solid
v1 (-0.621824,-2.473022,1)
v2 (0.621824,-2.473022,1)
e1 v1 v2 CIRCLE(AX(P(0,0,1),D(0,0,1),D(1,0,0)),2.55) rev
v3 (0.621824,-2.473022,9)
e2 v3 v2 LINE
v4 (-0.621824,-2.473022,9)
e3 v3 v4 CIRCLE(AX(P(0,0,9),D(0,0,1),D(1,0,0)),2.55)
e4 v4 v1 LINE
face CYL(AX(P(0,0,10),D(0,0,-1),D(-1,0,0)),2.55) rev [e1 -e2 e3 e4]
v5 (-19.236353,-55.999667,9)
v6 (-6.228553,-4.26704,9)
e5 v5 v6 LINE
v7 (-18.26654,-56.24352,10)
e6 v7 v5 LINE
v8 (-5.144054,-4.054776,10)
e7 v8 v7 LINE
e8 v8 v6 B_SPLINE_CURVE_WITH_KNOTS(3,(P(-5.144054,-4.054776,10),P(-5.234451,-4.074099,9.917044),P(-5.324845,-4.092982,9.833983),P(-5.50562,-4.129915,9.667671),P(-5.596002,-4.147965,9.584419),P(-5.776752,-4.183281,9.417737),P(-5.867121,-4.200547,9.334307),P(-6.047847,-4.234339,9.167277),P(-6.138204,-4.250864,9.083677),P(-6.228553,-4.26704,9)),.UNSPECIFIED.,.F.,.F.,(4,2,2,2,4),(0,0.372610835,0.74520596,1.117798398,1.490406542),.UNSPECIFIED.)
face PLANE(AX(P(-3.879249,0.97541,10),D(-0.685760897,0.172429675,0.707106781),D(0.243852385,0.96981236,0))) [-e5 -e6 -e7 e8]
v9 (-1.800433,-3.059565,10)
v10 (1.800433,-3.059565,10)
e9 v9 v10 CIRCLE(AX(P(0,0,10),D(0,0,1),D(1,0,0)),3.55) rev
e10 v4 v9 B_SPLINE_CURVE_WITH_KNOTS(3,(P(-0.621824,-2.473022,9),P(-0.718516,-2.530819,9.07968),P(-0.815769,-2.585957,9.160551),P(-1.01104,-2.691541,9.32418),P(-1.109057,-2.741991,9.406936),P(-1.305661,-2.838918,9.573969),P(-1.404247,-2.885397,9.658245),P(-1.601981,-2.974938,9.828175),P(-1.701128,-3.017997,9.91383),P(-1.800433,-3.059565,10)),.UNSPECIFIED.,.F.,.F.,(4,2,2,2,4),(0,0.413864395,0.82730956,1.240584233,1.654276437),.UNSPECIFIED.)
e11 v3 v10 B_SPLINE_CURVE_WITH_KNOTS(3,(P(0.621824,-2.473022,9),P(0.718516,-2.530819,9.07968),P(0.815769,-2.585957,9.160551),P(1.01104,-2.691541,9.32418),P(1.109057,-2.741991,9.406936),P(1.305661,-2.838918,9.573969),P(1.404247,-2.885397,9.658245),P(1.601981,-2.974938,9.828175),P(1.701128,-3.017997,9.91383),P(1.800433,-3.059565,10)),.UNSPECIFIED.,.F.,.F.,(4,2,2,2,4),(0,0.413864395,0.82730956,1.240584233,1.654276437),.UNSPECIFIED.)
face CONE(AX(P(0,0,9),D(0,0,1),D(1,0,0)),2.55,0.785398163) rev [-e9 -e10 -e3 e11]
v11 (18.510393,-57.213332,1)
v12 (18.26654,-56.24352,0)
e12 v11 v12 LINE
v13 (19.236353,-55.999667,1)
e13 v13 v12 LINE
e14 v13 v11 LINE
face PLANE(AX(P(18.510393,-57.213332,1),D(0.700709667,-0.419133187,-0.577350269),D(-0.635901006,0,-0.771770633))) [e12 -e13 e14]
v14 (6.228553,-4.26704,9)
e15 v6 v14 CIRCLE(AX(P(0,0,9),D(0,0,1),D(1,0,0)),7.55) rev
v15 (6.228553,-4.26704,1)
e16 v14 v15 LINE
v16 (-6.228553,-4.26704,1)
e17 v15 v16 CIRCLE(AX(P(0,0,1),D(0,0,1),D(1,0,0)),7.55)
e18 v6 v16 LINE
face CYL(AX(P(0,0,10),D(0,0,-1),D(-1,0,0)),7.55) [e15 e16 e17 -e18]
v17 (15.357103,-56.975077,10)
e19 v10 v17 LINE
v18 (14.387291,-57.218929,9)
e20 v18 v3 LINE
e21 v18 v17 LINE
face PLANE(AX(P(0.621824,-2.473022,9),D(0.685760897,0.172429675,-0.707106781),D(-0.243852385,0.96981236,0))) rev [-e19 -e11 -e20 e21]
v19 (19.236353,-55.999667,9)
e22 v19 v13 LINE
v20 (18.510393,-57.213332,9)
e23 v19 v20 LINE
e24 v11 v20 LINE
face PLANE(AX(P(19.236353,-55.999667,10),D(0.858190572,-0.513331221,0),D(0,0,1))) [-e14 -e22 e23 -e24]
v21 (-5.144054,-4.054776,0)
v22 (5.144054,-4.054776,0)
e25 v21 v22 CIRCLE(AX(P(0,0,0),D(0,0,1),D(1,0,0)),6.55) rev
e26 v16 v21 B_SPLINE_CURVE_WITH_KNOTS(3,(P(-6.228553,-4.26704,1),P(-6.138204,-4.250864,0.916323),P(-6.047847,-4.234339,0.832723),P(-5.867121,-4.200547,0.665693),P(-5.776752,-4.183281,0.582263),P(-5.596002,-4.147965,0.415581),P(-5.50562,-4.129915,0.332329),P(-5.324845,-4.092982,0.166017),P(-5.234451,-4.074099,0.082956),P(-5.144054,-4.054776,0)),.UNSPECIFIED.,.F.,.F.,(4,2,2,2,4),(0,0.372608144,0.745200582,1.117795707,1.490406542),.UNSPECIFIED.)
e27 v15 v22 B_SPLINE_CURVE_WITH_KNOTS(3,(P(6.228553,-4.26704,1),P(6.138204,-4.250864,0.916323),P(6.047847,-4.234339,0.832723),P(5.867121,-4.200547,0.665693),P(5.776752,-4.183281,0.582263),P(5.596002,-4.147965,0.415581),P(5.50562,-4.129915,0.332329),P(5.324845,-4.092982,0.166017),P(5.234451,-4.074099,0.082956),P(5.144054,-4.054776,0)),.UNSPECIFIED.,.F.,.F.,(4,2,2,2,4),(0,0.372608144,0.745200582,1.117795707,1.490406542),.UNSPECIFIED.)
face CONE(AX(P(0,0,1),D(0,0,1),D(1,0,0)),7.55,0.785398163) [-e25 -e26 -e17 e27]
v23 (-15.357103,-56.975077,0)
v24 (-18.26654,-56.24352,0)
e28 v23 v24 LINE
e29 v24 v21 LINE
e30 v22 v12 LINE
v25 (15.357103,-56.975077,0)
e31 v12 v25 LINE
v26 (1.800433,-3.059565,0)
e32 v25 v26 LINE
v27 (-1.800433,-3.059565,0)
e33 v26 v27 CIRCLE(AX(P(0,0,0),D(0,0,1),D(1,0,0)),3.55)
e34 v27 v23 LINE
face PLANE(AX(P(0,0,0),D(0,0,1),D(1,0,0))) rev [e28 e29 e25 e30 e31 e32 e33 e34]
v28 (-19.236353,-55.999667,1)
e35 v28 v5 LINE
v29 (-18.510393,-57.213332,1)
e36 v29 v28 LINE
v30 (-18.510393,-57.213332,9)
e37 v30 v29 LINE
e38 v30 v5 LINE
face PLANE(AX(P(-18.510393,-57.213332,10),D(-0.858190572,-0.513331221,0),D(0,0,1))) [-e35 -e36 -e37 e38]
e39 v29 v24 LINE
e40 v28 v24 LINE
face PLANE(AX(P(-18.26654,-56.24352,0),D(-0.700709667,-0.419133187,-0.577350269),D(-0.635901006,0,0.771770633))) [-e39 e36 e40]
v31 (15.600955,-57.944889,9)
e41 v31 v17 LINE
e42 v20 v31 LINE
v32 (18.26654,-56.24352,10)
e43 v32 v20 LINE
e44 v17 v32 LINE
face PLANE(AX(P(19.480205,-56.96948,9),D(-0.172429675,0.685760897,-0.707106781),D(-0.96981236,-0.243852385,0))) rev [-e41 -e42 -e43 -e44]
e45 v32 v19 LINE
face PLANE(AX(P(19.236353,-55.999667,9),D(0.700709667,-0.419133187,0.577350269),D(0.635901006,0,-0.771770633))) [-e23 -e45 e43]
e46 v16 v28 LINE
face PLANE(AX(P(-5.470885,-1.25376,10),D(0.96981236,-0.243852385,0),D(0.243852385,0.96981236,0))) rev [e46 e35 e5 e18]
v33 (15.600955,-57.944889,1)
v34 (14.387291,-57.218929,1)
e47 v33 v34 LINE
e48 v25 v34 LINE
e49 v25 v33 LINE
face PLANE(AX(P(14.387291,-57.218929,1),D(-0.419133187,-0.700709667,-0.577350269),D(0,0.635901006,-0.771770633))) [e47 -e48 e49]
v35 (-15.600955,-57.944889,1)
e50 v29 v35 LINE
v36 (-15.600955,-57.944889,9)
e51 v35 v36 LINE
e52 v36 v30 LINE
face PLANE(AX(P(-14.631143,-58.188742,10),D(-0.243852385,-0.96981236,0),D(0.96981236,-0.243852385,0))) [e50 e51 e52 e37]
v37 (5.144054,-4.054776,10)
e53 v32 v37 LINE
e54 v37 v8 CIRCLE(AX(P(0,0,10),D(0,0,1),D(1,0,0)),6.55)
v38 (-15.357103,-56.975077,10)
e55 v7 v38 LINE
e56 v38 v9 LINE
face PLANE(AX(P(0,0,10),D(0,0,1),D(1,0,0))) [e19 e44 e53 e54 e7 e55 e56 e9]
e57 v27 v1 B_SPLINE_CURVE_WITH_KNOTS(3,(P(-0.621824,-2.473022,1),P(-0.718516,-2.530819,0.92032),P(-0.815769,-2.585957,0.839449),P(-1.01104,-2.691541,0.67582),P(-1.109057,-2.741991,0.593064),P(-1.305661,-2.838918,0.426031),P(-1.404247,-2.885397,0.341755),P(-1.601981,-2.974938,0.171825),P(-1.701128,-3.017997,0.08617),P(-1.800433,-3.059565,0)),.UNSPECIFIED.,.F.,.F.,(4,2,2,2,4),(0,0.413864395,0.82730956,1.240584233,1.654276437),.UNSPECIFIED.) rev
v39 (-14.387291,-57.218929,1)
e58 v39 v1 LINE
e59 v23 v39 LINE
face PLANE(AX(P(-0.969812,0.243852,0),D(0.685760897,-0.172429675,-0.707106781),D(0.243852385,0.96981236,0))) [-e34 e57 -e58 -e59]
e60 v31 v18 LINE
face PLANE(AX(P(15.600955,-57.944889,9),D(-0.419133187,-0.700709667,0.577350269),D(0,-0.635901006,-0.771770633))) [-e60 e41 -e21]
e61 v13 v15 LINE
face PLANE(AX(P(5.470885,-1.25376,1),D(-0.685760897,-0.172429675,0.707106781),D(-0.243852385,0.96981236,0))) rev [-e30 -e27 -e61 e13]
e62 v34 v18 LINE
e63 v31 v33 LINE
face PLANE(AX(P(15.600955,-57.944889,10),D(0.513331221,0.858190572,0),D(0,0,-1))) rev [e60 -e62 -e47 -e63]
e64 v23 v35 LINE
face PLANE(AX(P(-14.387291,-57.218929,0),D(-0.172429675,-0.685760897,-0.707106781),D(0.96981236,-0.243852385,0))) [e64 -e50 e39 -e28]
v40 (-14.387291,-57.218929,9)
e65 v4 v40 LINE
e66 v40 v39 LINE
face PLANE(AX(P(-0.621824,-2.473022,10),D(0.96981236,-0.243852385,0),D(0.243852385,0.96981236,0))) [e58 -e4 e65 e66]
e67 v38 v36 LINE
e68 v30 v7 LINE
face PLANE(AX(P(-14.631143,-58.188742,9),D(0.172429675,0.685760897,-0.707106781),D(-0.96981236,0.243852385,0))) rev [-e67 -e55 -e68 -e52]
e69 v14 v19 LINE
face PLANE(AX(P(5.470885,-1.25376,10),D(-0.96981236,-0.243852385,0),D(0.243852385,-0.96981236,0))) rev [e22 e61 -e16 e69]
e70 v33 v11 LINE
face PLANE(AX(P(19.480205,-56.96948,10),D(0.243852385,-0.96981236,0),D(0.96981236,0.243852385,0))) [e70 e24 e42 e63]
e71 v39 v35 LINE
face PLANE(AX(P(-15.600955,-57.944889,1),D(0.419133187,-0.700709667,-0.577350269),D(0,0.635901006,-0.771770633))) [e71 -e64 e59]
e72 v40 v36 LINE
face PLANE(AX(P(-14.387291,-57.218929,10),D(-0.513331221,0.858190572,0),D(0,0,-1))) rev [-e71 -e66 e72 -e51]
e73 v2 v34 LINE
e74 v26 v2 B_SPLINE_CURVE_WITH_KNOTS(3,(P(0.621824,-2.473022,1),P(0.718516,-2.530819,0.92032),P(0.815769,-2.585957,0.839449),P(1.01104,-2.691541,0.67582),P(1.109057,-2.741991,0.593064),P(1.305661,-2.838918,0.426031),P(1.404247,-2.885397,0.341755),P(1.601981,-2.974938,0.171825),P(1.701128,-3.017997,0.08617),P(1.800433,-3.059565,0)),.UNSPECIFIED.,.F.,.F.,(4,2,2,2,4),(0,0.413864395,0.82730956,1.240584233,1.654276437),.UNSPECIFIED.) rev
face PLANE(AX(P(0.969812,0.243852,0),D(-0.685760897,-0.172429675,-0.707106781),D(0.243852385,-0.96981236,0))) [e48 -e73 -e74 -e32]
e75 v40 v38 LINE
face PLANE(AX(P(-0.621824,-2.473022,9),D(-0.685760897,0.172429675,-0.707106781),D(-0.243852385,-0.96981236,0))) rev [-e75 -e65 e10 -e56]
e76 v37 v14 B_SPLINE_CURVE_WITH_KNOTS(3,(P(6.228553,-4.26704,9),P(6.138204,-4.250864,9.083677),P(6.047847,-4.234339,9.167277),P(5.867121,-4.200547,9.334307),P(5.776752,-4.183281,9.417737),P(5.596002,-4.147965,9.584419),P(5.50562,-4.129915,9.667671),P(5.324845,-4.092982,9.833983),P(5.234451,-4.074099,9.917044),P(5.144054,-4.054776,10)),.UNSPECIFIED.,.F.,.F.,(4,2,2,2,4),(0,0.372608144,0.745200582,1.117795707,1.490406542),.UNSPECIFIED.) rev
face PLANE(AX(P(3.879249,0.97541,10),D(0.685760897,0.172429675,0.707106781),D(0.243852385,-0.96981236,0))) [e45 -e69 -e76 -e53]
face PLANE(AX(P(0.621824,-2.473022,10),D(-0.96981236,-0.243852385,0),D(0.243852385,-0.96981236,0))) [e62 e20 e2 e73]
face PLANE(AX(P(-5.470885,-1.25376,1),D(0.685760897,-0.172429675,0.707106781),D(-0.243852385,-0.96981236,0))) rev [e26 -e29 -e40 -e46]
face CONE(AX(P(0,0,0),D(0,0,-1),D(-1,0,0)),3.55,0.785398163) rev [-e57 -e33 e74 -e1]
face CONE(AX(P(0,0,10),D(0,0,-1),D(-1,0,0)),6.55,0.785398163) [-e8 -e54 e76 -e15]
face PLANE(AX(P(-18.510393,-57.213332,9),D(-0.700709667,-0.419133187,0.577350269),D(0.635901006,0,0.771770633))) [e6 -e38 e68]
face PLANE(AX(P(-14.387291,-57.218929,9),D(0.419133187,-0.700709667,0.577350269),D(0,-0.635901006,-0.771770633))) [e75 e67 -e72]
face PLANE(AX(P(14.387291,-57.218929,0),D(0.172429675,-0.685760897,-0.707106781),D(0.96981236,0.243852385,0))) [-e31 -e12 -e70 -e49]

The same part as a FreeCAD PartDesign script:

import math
import FreeCAD as App
import Part
import Sketcher

V = App.Vector


def edges_at(feature, points):
    """Names of the edges that pass closest to the given points."""
    edges = feature.Shape.Edges
    near = lambda p: min(range(len(edges)), key=lambda i: edges[i].distToShape(Part.Vertex(*p))[0])
    return sorted({f"Edge{near(p) + 1}" for p in points})

doc = App.newDocument("Part")
params = doc.addObject("Spreadsheet::Sheet", "Params")
for row, (alias, value) in enumerate([
    ("sketch1_radius", "7.55 mm"),
    ("sketch1_radius2", "2.55 mm"),
    ("sketch1_length", "5 mm"),
    ("sketch1_length2", "57.45 mm"),
    ("pad1_length", "10 mm"),
    ("chamfer_size", "1 mm"),
], start=1):
    params.set(f"A{row}", alias)
    params.set(f"B{row}", "=" + value)
    params.setAlias(f"B{row}", alias)

body = doc.addObject("PartDesign::Body", "Body")

# Sketch on XY plane
sketch1 = body.newObject("Sketcher::SketchObject", "Sketch")
sketch1.AttachmentSupport = (doc.getObject("XY_Plane"), [""])
sketch1.MapMode = "FlatFace"
sketch1.addGeometry([
    Part.LineSegment(V(0.6, -2.5, 0), V(14.6, -58.2, 0)),  # 0
    Part.LineSegment(V(14.6, -58.2, 0), V(19.5, -57, 0)),  # 1
    Part.LineSegment(V(19.5, -57, 0), V(6.2, -4.3, 0)),  # 2
    Part.ArcOfCircle(Part.Circle(V(0, 0, 0), V(0, 0, 1), 7.5), math.radians(-34), math.radians(214)),  # 3
    Part.LineSegment(V(-6.2, -4.3, 0), V(-19.5, -57, 0)),  # 4
    Part.LineSegment(V(-19.5, -57, 0), V(-14.6, -58.2, 0)),  # 5
    Part.LineSegment(V(-14.6, -58.2, 0), V(-0.6, -2.5, 0)),  # 6
    Part.ArcOfCircle(Part.Circle(V(0, 0, 0), V(0, 0, 1), 2.5), math.radians(-76), math.radians(256)),  # 7
], False)
sketch1.addConstraint([
    Sketcher.Constraint("Coincident", 0, 2, 1, 1),
    Sketcher.Constraint("Coincident", 1, 2, 2, 1),
    Sketcher.Constraint("Coincident", 2, 2, 3, 1),
    Sketcher.Constraint("Coincident", 3, 2, 4, 1),
    Sketcher.Constraint("Coincident", 4, 2, 5, 1),
    Sketcher.Constraint("Coincident", 5, 2, 6, 1),
    Sketcher.Constraint("Coincident", 6, 2, 7, 2),
    Sketcher.Constraint("Coincident", 7, 1, 0, 1),
    Sketcher.Constraint("Coincident", 3, 3, -1, 1),
    Sketcher.Constraint("Coincident", 7, 3, -1, 1),
    Sketcher.Constraint("Symmetric", 1, 2, 4, 2, -2),
    Sketcher.Constraint("Symmetric", 0, 2, 5, 2, -2),
    Sketcher.Constraint("Perpendicular", 0, 1),
    Sketcher.Constraint("Perpendicular", 1, 2),
    Sketcher.Constraint("Perpendicular", 4, 5),
    Sketcher.Constraint("Perpendicular", 5, 6),
    Sketcher.Constraint("Radius", 3, 7.55),
    Sketcher.Constraint("Radius", 7, 2.55),
    Sketcher.Constraint("Distance", 1, 5.0),
    Sketcher.Constraint("Distance", 0, 57.45),
    Sketcher.Constraint("DistanceY", 0, 2, -1, 1, 58.188742),
    Sketcher.Constraint("DistanceY", 1, 2, -1, 1, 56.96948),
])
sketch1.setExpression("Constraints[16]", "Params.sketch1_radius")
sketch1.setExpression("Constraints[17]", "Params.sketch1_radius2")
sketch1.setExpression("Constraints[18]", "Params.sketch1_length")
sketch1.setExpression("Constraints[19]", "Params.sketch1_length2")
pad1 = body.newObject("PartDesign::Pad", "Pad")
pad1.Profile = sketch1
pad1.setExpression("Length", "Params.pad1_length")
doc.recompute()

chamfer = body.newObject("PartDesign::Chamfer", "Chamfer")
chamfer.Base = (pad1, edges_at(pad1, [
    (19.48, -56.969, 5),
    (14.631, -58.189, 5),
    (-14.631, -58.189, 5),
    (-7.626, -30.331, 10),
    (-19.48, -56.969, 5),
    (0, 2.55, 10),
    (7.626, -30.331, 10),
    (17.056, -57.579, 10),
    (12.854, -30.618, 10),
    (0, 7.55, 10),
    (-12.854, -30.618, 10),
    (0, 7.55, 0),
    (12.854, -30.618, 0),
    (17.056, -57.579, 0),
    (7.626, -30.331, 0),
    (0, 2.55, 0),
    (-17.056, -57.579, 10),
    (-7.626, -30.331, 0),
    (-17.056, -57.579, 0),
    (-12.854, -30.618, 0),
]))
chamfer.setExpression("Size", "Params.chamfer_size")

doc.recompute()
